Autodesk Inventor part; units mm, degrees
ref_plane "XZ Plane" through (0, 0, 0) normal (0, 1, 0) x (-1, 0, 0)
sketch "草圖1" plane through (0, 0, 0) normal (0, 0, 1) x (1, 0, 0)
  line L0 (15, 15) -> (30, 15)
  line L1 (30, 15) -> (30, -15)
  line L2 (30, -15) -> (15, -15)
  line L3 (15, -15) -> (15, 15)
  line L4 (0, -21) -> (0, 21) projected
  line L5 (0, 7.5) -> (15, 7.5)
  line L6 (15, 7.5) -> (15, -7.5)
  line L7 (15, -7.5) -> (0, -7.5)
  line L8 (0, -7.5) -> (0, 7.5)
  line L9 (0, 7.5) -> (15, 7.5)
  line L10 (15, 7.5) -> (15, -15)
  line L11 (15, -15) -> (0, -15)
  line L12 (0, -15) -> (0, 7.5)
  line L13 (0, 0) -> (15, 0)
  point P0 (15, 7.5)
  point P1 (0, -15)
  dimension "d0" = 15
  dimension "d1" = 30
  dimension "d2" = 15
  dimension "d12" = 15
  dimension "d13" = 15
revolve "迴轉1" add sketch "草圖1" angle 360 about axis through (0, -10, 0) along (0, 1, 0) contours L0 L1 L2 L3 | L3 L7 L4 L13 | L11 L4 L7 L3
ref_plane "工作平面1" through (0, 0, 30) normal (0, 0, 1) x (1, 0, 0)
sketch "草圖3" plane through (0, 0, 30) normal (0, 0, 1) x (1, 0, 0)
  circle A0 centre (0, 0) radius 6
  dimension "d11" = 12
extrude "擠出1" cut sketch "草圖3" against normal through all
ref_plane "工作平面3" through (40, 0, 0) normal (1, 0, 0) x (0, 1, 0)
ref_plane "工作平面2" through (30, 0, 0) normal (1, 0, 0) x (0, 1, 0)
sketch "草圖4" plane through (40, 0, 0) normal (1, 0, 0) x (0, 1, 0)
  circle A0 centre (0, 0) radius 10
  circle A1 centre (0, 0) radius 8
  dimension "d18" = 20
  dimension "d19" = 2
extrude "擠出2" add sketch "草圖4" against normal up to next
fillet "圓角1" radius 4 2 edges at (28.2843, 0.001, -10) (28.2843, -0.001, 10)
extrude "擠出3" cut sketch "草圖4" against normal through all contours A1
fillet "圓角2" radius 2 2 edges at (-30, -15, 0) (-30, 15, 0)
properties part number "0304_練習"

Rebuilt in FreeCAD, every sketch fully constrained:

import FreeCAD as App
import Part
import Sketcher
Q = App.Units.Quantity


def edges_at(feature, points):
    """Names of the edges that pass closest to the given points."""
    edges = feature.Shape.Edges
    near = lambda p: min(range(len(edges)), key=lambda i: edges[i].distToShape(Part.Vertex(*p))[0])
    return sorted({f"Edge{near(p) + 1}" for p in points})


def add_polygon(sketch, points):
    """Adds a closed chain of lines whose ends are joined by coincident constraints."""
    first, n = sketch.GeometryCount, len(points)
    for a, b in zip(points, points[1:] + points[:1]):
        sketch.addGeometry(Part.LineSegment(App.Vector(*a, 0), App.Vector(*b, 0)), False)
    for i in range(n):
        sketch.addConstraint(Sketcher.Constraint("Coincident", first + i, 2, first + (i + 1) % n, 1))

doc = App.newDocument("Part")
body = doc.addObject("PartDesign::Body", "Body")

sketch1 = doc.addObject("Sketcher::SketchObject", "Sketch")
body.addObject(sketch1)
sketch1.AttachmentSupport = (doc.XY_Plane, [""])
sketch1.MapMode = "FlatFace"
add_polygon(sketch1, [(30, 15), (15, 15), (15, 0), (0, 0), (0, -15), (30, -15)])
sketch1.addConstraint(Sketcher.Constraint("Horizontal", 0))
sketch1.addConstraint(Sketcher.Constraint("Vertical", 1))
sketch1.addConstraint(Sketcher.Constraint("Horizontal", 2))
sketch1.addConstraint(Sketcher.Constraint("Vertical", 3))
sketch1.addConstraint(Sketcher.Constraint("Horizontal", 4))
sketch1.addConstraint(Sketcher.Constraint("Vertical", 5))
sketch1.addConstraint(Sketcher.Constraint("Coincident", 2, 2, -1, 1))
sketch1.addConstraint(Sketcher.Constraint("Equal", 0, 2))
sketch1.addConstraint(Sketcher.Constraint("Equal", 2, 1))
sketch1.addConstraint(Sketcher.Constraint("Equal", 1, 3))
sketch1.addConstraint(Sketcher.Constraint("DistanceX", 0, 2, 0, 1, Q("15 mm")))
revolution = doc.addObject("PartDesign::Revolution", "Revolution")
body.addObject(revolution)
revolution.Profile = sketch1
revolution.ReferenceAxis = (sketch1, ["V_Axis"])
revolution.Angle = 360

sketch2 = doc.addObject("Sketcher::SketchObject", "Sketch001")
body.addObject(sketch2)
sketch2.AttachmentSupport = (doc.XY_Plane, [""])
sketch2.MapMode = "FlatFace"
sketch2.AttachmentOffset = App.Placement(App.Vector(0, 0, 30), App.Rotation())
sketch2.addGeometry(Part.Circle(App.Vector(0, 0, 0), App.Vector(0, 0, 1), 6), False)
sketch2.addConstraint(Sketcher.Constraint("Coincident", 0, 3, -1, 1))
sketch2.addConstraint(Sketcher.Constraint("Diameter", 0, Q("12 mm")))
pocket1 = doc.addObject("PartDesign::Pocket", "Pocket")
body.addObject(pocket1)
pocket1.Profile = sketch2
pocket1.Type = "ThroughAll"

sketch3 = doc.addObject("Sketcher::SketchObject", "Sketch002")
body.addObject(sketch3)
sketch3.AttachmentSupport = (doc.YZ_Plane, [""])
sketch3.MapMode = "FlatFace"
sketch3.AttachmentOffset = App.Placement(App.Vector(0, 0, 40), App.Rotation())
sketch3.addGeometry(Part.Circle(App.Vector(0, 0, 0), App.Vector(0, 0, 1), 10), False)
sketch3.addGeometry(Part.Circle(App.Vector(0, 0, 0), App.Vector(0, 0, 1), 8), False)
sketch3.addConstraint(Sketcher.Constraint("Coincident", 0, 3, -1, 1))
sketch3.addConstraint(Sketcher.Constraint("Coincident", 1, 3, -1, 1))
sketch3.addConstraint(Sketcher.Constraint("Diameter", 0, Q("20 mm")))
sketch3.addConstraint(Sketcher.Constraint("Diameter", 1, Q("16 mm")))
pad1 = doc.addObject("PartDesign::Pad", "Pad")
body.addObject(pad1)
pad1.Profile = sketch3
pad1.Type = "UpToFirst"
pad1.Reversed = True
doc.recompute()

fillet = doc.addObject("PartDesign::Fillet", "Fillet")
body.addObject(fillet)
fillet.Base = (pad1, edges_at(pad1, [(28.284, 0.001, -10), (28.284, -0.001, 10)]))
fillet.Radius = 4

sketch4 = doc.addObject("Sketcher::SketchObject", "Sketch003")
body.addObject(sketch4)
sketch4.AttachmentSupport = (doc.YZ_Plane, [""])
sketch4.MapMode = "FlatFace"
sketch4.AttachmentOffset = App.Placement(App.Vector(0, 0, 40), App.Rotation())
sketch4.addGeometry(Part.Circle(App.Vector(0, 0, 0), App.Vector(0, 0, 1), 8), False)
sketch4.addConstraint(Sketcher.Constraint("Coincident", 0, 3, -1, 1))
sketch4.addConstraint(Sketcher.Constraint("Diameter", 0, Q("16 mm")))
pocket2 = doc.addObject("PartDesign::Pocket", "Pocket001")
body.addObject(pocket2)
pocket2.Profile = sketch4
pocket2.Type = "ThroughAll"
doc.recompute()

fillet2 = doc.addObject("PartDesign::Fillet", "Fillet001")
body.addObject(fillet2)
fillet2.Base = (pocket2, edges_at(pocket2, [(-30, -15, 0), (-30, 15, 0)]))
fillet2.Radius = 2

doc.recompute()
